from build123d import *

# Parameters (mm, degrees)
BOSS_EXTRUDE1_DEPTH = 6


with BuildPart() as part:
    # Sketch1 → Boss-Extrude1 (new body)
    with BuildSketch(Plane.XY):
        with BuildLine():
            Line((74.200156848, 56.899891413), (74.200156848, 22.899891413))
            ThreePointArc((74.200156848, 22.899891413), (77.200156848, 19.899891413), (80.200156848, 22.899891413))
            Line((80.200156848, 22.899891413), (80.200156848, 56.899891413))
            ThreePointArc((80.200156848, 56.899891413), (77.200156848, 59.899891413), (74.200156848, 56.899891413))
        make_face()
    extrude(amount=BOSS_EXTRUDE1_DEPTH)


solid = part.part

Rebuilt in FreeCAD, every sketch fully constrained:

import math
import FreeCAD as App
import Part
import Sketcher

V = App.Vector

doc = App.newDocument("Part")
body = doc.addObject("PartDesign::Body", "Body")

sketch1 = body.newObject("Sketcher::SketchObject", "Sketch")
sketch1.AttachmentSupport = (doc.getObject("XY_Plane"), [""])
sketch1.MapMode = "FlatFace"
sketch1.addGeometry([
    Part.LineSegment(V(74.200157, 56.899891, 0), V(74.200157, 22.899891, 0)),
    Part.ArcOfCircle(Part.Circle(V(77.200157, 22.899891, 0), V(0, 0, 1), 3), math.radians(180), math.radians(360)),
    Part.LineSegment(V(80.200157, 22.899891, 0), V(80.200157, 56.899891, 0)),
    Part.ArcOfCircle(Part.Circle(V(77.200157, 56.899891, 0), V(0, 0, 1), 3), math.radians(0), math.radians(180)),
], False)
sketch1.addConstraint([
    Sketcher.Constraint("Tangent", 0, 2, 1, 1),
    Sketcher.Constraint("Tangent", 1, 2, 2, 1),
    Sketcher.Constraint("Tangent", 2, 2, 3, 1),
    Sketcher.Constraint("Tangent", 3, 2, 0, 1),
    Sketcher.Constraint("Vertical", 0),
    Sketcher.Constraint("Vertical", 2),
    Sketcher.Constraint("Radius", 1, 3.0),
    Sketcher.Constraint("DistanceY", 0, 2, 0, 1, 34.0),
    Sketcher.Constraint("DistanceY", -1, 1, 1, 3, 22.899891),
    Sketcher.Constraint("DistanceX", -1, 1, 1, 3, 77.200157),
])
pad1 = body.newObject("PartDesign::Pad", "Pad")
pad1.Profile = sketch1
pad1.Length = 6

doc.recompute()
